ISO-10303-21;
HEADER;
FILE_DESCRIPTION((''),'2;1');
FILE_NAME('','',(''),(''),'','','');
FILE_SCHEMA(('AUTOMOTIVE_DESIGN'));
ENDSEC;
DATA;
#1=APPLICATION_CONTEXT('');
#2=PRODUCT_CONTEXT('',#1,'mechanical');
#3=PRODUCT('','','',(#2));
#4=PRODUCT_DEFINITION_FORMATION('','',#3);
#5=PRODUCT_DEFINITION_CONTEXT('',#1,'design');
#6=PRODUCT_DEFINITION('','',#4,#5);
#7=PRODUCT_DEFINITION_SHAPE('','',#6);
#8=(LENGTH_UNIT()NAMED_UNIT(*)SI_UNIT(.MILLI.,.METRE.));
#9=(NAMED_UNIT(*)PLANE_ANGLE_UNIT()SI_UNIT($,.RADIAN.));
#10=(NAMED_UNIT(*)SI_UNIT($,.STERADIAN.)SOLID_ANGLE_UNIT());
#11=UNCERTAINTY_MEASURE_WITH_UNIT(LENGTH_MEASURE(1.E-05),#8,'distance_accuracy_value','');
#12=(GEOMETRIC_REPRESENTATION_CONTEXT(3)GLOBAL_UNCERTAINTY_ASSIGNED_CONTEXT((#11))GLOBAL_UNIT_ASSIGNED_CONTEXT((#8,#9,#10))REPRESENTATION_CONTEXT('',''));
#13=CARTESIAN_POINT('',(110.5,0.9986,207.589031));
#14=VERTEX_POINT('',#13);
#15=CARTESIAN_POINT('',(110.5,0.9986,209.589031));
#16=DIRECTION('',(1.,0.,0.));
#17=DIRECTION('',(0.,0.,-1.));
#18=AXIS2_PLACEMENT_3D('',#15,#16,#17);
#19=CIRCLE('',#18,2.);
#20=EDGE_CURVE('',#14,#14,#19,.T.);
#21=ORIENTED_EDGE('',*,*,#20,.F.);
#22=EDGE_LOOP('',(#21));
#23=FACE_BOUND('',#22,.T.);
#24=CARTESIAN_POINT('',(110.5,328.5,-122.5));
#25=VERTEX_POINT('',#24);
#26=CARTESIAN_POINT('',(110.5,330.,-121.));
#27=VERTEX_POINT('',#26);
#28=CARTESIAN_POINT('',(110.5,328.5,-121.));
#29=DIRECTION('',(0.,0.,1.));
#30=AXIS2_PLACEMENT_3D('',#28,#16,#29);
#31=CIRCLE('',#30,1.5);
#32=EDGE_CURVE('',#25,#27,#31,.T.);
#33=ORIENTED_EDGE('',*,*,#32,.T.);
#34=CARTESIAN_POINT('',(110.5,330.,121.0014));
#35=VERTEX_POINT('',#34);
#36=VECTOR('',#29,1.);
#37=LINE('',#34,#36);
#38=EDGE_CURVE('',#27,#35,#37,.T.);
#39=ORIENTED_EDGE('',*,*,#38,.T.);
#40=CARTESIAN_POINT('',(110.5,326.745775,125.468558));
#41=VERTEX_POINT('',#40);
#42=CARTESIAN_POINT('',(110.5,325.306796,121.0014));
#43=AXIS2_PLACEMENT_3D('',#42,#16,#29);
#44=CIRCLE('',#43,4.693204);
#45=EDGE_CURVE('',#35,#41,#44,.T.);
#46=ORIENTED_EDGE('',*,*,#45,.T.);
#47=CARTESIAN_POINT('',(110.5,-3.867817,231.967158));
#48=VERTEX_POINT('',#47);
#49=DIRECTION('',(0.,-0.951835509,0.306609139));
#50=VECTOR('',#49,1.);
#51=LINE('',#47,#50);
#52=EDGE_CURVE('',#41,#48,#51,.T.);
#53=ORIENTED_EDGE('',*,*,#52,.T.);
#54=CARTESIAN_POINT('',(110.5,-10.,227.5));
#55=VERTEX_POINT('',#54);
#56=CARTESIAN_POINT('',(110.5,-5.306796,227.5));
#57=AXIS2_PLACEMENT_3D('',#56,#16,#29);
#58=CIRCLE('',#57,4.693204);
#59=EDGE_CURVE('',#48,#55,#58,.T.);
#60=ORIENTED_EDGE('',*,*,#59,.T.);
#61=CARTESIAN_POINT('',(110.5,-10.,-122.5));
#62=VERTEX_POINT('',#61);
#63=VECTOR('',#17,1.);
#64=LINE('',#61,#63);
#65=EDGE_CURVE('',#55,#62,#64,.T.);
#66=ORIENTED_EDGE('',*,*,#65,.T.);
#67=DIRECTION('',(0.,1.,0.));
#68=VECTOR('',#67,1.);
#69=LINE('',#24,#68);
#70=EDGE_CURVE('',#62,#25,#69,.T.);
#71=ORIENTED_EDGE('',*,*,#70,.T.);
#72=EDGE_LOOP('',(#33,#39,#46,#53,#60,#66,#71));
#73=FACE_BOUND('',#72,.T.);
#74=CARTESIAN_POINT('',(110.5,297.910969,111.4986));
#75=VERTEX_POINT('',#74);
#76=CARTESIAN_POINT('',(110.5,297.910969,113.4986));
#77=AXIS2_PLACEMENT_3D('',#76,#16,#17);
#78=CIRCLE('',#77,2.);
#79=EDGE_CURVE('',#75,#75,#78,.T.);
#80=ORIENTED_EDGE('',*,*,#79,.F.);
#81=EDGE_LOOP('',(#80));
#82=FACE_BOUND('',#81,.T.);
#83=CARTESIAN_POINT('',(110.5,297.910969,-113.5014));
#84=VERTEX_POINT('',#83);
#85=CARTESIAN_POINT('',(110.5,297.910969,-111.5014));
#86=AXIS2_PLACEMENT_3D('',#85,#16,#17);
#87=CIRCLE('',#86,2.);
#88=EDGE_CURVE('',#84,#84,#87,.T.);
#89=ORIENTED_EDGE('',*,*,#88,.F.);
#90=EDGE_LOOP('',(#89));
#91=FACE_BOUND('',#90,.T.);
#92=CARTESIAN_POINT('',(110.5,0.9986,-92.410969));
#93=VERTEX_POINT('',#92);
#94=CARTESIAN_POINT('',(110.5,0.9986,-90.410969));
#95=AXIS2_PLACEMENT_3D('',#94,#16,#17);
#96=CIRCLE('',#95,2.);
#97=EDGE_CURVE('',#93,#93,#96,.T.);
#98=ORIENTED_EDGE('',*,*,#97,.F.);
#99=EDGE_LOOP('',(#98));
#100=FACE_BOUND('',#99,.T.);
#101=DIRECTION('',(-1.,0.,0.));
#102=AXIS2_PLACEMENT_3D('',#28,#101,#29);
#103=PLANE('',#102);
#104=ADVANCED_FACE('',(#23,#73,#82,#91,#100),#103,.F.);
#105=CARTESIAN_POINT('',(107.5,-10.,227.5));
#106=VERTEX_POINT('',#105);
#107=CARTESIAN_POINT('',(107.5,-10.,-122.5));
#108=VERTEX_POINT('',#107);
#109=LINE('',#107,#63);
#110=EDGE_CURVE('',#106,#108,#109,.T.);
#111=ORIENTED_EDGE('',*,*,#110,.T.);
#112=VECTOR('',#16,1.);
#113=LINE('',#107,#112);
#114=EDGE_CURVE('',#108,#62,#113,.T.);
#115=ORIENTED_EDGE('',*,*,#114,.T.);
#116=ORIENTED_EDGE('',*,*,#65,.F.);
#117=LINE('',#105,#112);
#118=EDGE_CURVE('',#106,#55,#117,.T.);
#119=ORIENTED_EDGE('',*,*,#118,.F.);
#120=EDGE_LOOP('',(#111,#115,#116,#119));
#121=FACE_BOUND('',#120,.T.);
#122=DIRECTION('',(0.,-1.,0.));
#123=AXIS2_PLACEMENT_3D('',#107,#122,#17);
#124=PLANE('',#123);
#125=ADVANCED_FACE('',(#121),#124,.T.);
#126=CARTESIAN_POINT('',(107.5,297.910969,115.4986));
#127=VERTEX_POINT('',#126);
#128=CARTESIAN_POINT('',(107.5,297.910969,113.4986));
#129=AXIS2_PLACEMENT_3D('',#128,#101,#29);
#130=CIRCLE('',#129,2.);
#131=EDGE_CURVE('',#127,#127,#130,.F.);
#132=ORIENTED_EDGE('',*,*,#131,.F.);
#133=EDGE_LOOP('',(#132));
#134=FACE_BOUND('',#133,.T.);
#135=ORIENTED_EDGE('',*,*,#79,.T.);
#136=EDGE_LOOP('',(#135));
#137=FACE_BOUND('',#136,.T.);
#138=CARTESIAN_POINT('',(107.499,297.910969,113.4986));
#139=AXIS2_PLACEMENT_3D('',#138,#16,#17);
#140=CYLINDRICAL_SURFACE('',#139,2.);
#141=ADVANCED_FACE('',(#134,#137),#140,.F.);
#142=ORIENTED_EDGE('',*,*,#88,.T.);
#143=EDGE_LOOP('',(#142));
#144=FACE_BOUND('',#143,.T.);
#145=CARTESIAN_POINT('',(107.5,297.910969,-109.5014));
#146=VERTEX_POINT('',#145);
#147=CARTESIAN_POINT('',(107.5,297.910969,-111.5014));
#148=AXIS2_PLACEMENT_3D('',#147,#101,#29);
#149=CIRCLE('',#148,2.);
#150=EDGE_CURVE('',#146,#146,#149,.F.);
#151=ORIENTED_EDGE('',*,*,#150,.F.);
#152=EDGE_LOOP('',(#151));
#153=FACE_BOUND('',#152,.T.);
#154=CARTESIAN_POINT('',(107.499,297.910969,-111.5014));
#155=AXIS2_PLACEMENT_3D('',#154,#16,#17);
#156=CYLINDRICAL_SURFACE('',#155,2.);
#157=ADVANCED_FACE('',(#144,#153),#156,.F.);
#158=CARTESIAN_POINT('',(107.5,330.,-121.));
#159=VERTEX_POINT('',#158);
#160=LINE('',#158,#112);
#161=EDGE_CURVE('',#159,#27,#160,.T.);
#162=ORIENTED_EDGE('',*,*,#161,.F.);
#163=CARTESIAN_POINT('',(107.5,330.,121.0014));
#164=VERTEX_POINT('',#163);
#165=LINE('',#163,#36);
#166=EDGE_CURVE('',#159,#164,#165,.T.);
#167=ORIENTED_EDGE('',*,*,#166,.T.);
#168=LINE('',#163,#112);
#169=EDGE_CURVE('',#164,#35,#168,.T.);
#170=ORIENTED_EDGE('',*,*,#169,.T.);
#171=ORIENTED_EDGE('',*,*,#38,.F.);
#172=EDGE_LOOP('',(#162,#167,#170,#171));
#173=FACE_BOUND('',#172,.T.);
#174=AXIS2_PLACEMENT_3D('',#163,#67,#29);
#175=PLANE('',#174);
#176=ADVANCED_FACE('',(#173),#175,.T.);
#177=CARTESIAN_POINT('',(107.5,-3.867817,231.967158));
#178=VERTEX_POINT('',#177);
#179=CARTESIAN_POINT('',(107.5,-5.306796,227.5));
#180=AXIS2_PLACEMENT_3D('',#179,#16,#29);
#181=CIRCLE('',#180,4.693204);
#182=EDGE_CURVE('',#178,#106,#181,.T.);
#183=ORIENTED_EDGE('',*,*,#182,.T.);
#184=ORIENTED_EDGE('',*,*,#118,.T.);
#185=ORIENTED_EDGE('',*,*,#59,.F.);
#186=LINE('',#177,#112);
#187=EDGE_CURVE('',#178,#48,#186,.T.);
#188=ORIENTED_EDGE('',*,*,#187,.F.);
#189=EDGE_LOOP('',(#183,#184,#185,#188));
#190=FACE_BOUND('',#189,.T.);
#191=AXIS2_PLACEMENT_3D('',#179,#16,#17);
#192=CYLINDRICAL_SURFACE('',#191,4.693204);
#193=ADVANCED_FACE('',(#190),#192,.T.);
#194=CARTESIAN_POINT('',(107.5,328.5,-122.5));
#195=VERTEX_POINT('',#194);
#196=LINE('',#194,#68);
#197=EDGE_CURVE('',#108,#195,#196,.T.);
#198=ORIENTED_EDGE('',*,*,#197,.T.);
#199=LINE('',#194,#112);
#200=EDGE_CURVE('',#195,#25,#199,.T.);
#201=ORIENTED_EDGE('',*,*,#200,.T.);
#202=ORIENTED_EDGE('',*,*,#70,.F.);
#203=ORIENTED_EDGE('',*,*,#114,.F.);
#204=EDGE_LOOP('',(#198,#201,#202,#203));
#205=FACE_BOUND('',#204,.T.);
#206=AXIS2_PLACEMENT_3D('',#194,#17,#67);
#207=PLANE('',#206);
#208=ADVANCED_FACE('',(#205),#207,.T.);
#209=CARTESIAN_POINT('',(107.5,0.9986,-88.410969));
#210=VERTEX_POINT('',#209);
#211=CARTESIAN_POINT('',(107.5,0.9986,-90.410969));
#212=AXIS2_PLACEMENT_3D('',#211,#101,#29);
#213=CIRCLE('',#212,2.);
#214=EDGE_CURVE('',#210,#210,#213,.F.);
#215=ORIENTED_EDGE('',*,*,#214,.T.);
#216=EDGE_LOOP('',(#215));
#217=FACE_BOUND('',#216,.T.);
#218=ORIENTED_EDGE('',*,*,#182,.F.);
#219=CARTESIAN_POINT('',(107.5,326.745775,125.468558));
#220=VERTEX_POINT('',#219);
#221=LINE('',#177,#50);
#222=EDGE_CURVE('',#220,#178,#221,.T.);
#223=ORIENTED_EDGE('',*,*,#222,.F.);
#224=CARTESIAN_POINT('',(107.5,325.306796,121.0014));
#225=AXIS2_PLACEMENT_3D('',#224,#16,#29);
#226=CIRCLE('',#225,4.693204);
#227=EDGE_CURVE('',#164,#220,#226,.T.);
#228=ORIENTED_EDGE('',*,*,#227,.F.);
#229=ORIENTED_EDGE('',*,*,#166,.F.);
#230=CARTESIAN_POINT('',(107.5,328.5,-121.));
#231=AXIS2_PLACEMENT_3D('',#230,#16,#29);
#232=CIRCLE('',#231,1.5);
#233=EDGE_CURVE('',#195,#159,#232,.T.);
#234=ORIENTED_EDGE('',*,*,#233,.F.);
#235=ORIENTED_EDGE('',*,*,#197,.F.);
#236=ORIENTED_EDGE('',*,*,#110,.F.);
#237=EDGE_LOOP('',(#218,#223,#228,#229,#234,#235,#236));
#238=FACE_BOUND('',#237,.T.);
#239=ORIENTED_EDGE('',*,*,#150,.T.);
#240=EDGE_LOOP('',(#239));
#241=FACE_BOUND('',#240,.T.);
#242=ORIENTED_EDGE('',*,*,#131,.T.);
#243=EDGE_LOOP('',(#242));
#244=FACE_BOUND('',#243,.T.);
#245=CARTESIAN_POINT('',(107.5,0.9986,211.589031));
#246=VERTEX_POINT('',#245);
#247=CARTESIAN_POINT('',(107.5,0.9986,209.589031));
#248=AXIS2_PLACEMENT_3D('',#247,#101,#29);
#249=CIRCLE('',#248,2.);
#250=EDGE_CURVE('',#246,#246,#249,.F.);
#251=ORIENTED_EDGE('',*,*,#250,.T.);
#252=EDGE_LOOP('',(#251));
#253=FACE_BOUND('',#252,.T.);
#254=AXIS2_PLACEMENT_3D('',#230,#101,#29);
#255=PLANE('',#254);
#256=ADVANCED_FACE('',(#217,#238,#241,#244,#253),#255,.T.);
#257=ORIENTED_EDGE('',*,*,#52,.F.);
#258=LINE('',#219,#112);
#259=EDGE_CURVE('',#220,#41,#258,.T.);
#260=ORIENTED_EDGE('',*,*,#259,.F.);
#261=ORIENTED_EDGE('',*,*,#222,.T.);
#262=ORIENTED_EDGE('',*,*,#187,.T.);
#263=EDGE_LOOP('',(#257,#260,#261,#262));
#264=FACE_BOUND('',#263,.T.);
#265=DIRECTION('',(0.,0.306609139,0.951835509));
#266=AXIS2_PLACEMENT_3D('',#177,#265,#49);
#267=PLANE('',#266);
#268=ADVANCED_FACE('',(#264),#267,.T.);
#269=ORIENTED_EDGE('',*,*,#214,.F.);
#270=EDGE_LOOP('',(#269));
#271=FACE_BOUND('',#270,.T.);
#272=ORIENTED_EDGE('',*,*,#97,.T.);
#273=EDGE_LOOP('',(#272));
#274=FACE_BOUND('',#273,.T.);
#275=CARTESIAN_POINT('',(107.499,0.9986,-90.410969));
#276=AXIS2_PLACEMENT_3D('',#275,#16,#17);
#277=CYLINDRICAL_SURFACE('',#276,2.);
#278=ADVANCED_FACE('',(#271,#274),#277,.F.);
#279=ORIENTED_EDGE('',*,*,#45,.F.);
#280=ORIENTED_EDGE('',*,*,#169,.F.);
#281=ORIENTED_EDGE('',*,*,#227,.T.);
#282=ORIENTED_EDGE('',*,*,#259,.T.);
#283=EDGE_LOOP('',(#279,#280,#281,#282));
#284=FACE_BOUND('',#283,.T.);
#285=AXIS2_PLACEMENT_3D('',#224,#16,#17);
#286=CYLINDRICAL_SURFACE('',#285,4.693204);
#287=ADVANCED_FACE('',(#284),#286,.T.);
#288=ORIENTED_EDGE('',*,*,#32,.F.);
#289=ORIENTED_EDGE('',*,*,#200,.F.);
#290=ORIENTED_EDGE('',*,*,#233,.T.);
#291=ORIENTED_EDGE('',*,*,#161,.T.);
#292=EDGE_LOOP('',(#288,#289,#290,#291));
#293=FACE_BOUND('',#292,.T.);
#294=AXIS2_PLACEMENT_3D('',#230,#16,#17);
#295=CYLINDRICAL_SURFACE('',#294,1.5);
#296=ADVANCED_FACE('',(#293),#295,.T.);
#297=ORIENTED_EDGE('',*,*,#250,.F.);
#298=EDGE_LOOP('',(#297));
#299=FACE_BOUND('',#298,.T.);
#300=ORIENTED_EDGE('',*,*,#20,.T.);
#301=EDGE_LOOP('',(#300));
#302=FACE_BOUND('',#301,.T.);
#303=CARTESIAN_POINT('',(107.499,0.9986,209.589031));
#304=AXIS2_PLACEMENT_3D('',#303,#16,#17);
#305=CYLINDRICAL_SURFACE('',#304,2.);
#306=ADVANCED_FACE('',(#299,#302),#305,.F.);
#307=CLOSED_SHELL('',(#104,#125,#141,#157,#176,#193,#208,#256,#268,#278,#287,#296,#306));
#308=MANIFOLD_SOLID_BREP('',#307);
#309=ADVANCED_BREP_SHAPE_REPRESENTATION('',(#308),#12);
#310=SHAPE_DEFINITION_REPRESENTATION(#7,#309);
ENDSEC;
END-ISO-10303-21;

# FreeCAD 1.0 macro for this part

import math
import FreeCAD as App
import Part
import Sketcher
from FreeCAD import Vector

doc = App.newDocument("Part")
params = doc.addObject("Spreadsheet::Sheet", "Params")
for row, (alias, value) in enumerate([
    ("sketch1_radius", "1.5 mm"),
    ("sketch1_height", "350 mm"),
    ("sketch1_width", "338.5 mm"),
    ("pad1_length", "3 mm"),
    ("sketch2_diameter", "4 mm"),
    ("sketch3_diameter", "4 mm"),
    ("sketch4_diameter", "4 mm"),
    ("sketch5_diameter", "4 mm"),
], start=1):
    params.set(f"A{row}", alias)
    params.set(f"B{row}", "=" + value)
    params.setAlias(f"B{row}", alias)

body = doc.addObject("PartDesign::Body", "Body")

# Sketch on YZ plane
sketch1 = body.newObject("Sketcher::SketchObject", "Sketch")
sketch1.AttachmentSupport = (doc.getObject("YZ_Plane"), [""])
sketch1.MapMode = "FlatFace"
sketch1.AttachmentOffset = App.Placement(Vector(0, 0, 110.5), App.Rotation())
sketch1.addGeometry(Part.LineSegment(Vector(-10, -122.5, 0), Vector(328.5, -122.5, 0)), False)
sketch1.addGeometry(Part.ArcOfCircle(Part.Circle(Vector(328.5, -121, 0), Vector(0, 0, 1), 1.5), math.radians(-90), math.radians(0)), False)
sketch1.addGeometry(Part.LineSegment(Vector(330, -121, 0), Vector(330, 121, 0)), False)
sketch1.addGeometry(Part.ArcOfCircle(Part.Circle(Vector(325.3, 121, 0), Vector(0, 0, 1), 4.7), math.radians(0), math.radians(72)), False)
sketch1.addGeometry(Part.LineSegment(Vector(326.7, 125.5, 0), Vector(-3.9, 232, 0)), False)
sketch1.addGeometry(Part.ArcOfCircle(Part.Circle(Vector(-5.3, 227.5, 0), Vector(0, 0, 1), 4.7), math.radians(72), math.radians(180)), False)
sketch1.addGeometry(Part.LineSegment(Vector(-10, 227.5, 0), Vector(-10, -122.5, 0)), False)
sketch1.addConstraint(Sketcher.Constraint("Tangent", 0, 2, 1, 1))
sketch1.addConstraint(Sketcher.Constraint("Tangent", 1, 2, 2, 1))
sketch1.addConstraint(Sketcher.Constraint("Tangent", 2, 2, 3, 1))
sketch1.addConstraint(Sketcher.Constraint("Tangent", 3, 2, 4, 1))
sketch1.addConstraint(Sketcher.Constraint("Tangent", 4, 2, 5, 1))
sketch1.addConstraint(Sketcher.Constraint("Tangent", 5, 2, 6, 1))
sketch1.addConstraint(Sketcher.Constraint("Coincident", 6, 2, 0, 1))
sketch1.addConstraint(Sketcher.Constraint("Horizontal", 0))
sketch1.addConstraint(Sketcher.Constraint("Vertical", 2))
sketch1.addConstraint(Sketcher.Constraint("Vertical", 6))
sketch1.addConstraint(Sketcher.Constraint("Equal", 3, 5))
sketch1.addConstraint(Sketcher.Constraint("Radius", 1, 1.5))
sketch1.addConstraint(Sketcher.Constraint("DistanceY", 6, 2, 6, 1, 350.0))
sketch1.addConstraint(Sketcher.Constraint("DistanceX", 0, 1, 0, 2, 338.5))
sketch1.addConstraint(Sketcher.Constraint("DistanceY", 1, 3, -1, 1, 121.0))
sketch1.addConstraint(Sketcher.Constraint("DistanceX", -1, 1, 1, 2, 330.0))
sketch1.addConstraint(Sketcher.Constraint("DistanceY", 2, 1, 2, 2, 242.0014))
sketch1.addConstraint(Sketcher.Constraint("Radius", 3, 4.693204))
sketch1.setExpression("Constraints[11]", "Params.sketch1_radius")
sketch1.setExpression("Constraints[12]", "Params.sketch1_height")
sketch1.setExpression("Constraints[13]", "Params.sketch1_width")
pad1 = body.newObject("PartDesign::Pad", "Pad")
pad1.Profile = sketch1
pad1.setExpression("Length", "Params.pad1_length")
pad1.Reversed = True

# Sketch on YZ plane
sketch2 = body.newObject("Sketcher::SketchObject", "Sketch001")
sketch2.AttachmentSupport = (doc.getObject("YZ_Plane"), [""])
sketch2.MapMode = "FlatFace"
sketch2.AttachmentOffset = App.Placement(Vector(0, 0, 110.5), App.Rotation())
sketch2.addGeometry(Part.Circle(Vector(297.9, -111.5, 0), Vector(0, 0, 1), 2), False)
sketch2.addConstraint(Sketcher.Constraint("Diameter", 0, 4.0))
sketch2.addConstraint(Sketcher.Constraint("DistanceY", 0, 3, -1, 1, 111.5014))
sketch2.addConstraint(Sketcher.Constraint("DistanceX", -1, 1, 0, 3, 297.910969))
sketch2.setExpression("Constraints[0]", "Params.sketch2_diameter")
pocket1 = body.newObject("PartDesign::Pocket", "Pocket")
pocket1.Profile = sketch2
pocket1.Type = "UpToFirst"

# Sketch on YZ plane
sketch3 = body.newObject("Sketcher::SketchObject", "Sketch002")
sketch3.AttachmentSupport = (doc.getObject("YZ_Plane"), [""])
sketch3.MapMode = "FlatFace"
sketch3.AttachmentOffset = App.Placement(Vector(0, 0, 110.5), App.Rotation())
sketch3.addGeometry(Part.Circle(Vector(1, -90.4, 0), Vector(0, 0, 1), 2), False)
sketch3.addConstraint(Sketcher.Constraint("Diameter", 0, 4.0))
sketch3.addConstraint(Sketcher.Constraint("DistanceX", -1, 1, 0, 3, 0.9986))
sketch3.addConstraint(Sketcher.Constraint("DistanceY", 0, 3, -1, 1, 90.410969))
sketch3.setExpression("Constraints[0]", "Params.sketch3_diameter")
pocket2 = body.newObject("PartDesign::Pocket", "Pocket001")
pocket2.Profile = sketch3
pocket2.Type = "UpToFirst"

# Sketch on YZ plane
sketch4 = body.newObject("Sketcher::SketchObject", "Sketch003")
sketch4.AttachmentSupport = (doc.getObject("YZ_Plane"), [""])
sketch4.MapMode = "FlatFace"
sketch4.AttachmentOffset = App.Placement(Vector(0, 0, 110.5), App.Rotation())
sketch4.addGeometry(Part.Circle(Vector(1, 209.6, 0), Vector(0, 0, 1), 2), False)
sketch4.addConstraint(Sketcher.Constraint("Diameter", 0, 4.0))
sketch4.addConstraint(Sketcher.Constraint("DistanceX", -1, 1, 0, 3, 0.9986))
sketch4.addConstraint(Sketcher.Constraint("DistanceY", -1, 1, 0, 3, 209.589031))
sketch4.setExpression("Constraints[0]", "Params.sketch4_diameter")
pocket3 = body.newObject("PartDesign::Pocket", "Pocket002")
pocket3.Profile = sketch4
pocket3.Type = "UpToFirst"

# Sketch on YZ plane
sketch5 = body.newObject("Sketcher::SketchObject", "Sketch004")
sketch5.AttachmentSupport = (doc.getObject("YZ_Plane"), [""])
sketch5.MapMode = "FlatFace"
sketch5.AttachmentOffset = App.Placement(Vector(0, 0, 110.5), App.Rotation())
sketch5.addGeometry(Part.Circle(Vector(297.9, 113.5, 0), Vector(0, 0, 1), 2), False)
sketch5.addConstraint(Sketcher.Constraint("Diameter", 0, 4.0))
sketch5.addConstraint(Sketcher.Constraint("DistanceY", -1, 1, 0, 3, 113.4986))
sketch5.addConstraint(Sketcher.Constraint("DistanceX", -1, 1, 0, 3, 297.910969))
sketch5.setExpression("Constraints[0]", "Params.sketch5_diameter")
pocket4 = body.newObject("PartDesign::Pocket", "Pocket003")
pocket4.Profile = sketch5
pocket4.Type = "UpToFirst"

doc.recompute()
